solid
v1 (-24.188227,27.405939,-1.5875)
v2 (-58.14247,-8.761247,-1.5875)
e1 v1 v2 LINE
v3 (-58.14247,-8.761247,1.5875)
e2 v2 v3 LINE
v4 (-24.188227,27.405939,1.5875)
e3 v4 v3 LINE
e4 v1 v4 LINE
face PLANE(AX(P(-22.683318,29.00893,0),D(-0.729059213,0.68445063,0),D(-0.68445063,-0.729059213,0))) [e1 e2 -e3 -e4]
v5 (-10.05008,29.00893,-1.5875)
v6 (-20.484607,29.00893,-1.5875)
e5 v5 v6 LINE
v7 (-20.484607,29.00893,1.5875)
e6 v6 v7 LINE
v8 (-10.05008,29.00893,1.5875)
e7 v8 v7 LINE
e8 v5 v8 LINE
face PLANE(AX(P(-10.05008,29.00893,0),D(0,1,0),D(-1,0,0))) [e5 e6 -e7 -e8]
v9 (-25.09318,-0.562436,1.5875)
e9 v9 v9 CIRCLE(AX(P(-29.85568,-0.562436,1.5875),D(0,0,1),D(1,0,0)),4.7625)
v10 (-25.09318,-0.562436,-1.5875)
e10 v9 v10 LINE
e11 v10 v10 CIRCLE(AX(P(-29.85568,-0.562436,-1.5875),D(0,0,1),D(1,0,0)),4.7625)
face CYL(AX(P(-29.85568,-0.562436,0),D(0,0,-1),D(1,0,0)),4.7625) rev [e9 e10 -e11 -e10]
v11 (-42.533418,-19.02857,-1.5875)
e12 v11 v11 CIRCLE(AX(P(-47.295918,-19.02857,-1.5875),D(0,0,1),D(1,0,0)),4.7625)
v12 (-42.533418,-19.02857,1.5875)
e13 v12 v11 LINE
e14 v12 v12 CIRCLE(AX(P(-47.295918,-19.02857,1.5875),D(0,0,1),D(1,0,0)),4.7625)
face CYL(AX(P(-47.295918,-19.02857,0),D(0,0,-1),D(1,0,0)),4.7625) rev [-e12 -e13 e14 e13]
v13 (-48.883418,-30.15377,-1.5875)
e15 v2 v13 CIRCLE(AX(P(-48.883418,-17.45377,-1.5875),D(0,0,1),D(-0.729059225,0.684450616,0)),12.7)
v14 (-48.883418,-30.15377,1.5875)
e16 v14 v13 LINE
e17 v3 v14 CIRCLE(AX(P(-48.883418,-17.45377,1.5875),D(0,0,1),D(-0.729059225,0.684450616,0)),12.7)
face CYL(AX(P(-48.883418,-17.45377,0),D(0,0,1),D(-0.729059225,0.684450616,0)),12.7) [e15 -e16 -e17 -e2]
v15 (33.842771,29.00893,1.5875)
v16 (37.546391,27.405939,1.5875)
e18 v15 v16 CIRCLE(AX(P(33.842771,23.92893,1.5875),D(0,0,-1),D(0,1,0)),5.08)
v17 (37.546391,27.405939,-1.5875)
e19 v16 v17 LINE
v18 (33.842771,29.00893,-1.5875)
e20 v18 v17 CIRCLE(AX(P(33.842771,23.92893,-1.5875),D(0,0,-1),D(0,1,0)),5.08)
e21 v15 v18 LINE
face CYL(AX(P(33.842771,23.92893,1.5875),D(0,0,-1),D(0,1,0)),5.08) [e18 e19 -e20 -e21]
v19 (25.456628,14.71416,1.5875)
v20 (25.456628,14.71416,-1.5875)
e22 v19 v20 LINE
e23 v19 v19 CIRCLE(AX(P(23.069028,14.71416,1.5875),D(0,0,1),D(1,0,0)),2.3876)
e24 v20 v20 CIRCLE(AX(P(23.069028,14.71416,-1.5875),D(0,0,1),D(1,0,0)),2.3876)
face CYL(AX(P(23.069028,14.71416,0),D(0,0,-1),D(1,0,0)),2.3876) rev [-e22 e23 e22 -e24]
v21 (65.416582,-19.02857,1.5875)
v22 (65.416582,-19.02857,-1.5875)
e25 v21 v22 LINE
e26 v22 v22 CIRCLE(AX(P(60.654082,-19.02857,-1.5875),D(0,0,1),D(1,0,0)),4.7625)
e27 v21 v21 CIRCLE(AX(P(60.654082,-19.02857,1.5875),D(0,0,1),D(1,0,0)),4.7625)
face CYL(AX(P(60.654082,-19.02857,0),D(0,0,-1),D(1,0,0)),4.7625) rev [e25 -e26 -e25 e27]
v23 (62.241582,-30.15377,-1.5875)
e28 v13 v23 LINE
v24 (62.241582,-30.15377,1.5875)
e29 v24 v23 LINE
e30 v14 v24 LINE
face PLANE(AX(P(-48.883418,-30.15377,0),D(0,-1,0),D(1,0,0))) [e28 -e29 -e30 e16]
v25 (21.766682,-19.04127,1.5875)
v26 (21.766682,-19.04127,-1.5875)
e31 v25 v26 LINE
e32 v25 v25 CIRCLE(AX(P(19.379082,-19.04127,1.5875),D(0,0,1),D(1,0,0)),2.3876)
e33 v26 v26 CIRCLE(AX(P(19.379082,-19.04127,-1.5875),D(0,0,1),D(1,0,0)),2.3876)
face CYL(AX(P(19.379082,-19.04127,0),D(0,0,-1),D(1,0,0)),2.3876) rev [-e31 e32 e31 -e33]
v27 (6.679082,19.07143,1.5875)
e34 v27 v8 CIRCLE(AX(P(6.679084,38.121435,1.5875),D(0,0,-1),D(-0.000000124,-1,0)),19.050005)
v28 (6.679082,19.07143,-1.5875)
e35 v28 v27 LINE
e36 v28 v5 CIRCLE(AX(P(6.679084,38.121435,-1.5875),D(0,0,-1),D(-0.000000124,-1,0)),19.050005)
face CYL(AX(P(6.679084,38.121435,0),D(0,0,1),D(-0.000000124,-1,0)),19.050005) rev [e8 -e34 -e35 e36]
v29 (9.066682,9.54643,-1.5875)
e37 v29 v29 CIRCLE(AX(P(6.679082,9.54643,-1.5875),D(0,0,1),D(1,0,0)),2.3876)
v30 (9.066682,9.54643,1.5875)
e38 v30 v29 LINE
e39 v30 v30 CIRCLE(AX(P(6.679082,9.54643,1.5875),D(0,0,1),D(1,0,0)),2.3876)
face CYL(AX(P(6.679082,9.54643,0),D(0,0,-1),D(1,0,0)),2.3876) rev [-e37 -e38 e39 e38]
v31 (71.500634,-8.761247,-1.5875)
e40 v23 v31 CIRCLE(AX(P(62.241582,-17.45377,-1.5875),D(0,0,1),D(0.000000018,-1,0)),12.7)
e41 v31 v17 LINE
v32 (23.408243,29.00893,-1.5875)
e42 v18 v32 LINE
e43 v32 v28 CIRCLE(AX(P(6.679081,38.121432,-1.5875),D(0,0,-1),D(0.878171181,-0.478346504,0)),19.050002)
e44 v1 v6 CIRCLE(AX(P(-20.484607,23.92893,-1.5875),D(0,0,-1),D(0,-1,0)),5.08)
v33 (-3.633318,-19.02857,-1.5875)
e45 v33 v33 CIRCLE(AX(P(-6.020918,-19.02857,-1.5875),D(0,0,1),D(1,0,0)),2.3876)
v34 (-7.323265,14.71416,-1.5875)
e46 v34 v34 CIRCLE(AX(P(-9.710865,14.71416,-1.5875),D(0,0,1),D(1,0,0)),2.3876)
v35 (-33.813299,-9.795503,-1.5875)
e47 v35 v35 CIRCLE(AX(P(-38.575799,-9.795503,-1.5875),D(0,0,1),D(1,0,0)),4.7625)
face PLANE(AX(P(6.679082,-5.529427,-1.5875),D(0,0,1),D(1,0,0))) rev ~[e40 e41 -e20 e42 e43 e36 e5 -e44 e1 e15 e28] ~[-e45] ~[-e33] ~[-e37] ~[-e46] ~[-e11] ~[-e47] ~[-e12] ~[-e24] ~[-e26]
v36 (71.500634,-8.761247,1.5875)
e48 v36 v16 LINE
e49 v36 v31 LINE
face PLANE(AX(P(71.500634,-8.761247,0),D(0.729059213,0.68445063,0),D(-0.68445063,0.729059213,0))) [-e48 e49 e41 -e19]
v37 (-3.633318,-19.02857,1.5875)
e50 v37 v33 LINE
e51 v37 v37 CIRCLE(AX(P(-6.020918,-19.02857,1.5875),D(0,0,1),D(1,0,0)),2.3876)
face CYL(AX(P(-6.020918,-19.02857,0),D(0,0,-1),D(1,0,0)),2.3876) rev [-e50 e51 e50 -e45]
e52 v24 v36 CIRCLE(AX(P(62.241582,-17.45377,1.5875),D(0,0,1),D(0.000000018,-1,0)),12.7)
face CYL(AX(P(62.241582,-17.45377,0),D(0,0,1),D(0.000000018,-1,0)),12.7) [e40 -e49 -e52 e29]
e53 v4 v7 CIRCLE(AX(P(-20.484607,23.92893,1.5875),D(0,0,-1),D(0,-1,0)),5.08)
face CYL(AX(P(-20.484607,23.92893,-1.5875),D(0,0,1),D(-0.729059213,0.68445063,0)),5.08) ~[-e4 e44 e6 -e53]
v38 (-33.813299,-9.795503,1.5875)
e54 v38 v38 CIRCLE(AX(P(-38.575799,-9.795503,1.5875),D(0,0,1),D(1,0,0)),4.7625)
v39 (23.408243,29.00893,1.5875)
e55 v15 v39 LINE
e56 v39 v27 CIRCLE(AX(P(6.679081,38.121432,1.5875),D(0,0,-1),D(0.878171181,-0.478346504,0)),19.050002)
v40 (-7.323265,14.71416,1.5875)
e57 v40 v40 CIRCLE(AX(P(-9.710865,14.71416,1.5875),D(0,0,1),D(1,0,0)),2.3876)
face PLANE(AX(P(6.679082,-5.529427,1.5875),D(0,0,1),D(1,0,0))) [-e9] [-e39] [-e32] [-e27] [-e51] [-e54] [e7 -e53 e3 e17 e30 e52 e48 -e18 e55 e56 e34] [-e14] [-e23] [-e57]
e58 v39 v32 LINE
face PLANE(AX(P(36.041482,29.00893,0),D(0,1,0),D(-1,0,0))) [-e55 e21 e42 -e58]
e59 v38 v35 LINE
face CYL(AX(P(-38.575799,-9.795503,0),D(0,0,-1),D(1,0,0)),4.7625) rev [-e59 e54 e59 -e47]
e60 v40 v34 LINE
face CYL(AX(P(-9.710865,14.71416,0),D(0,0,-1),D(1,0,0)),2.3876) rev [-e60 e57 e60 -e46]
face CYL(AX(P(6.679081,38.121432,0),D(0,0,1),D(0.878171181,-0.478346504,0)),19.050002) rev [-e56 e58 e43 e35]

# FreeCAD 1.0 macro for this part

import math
import FreeCAD as App
import Part
import Sketcher

V = App.Vector
Q = App.Units.Quantity


def edges_at(feature, points):
    """Names of the edges that pass closest to the given points."""
    edges = feature.Shape.Edges
    near = lambda p: min(range(len(edges)), key=lambda i: edges[i].distToShape(Part.Vertex(*p))[0])
    return sorted({f"Edge{near(p) + 1}" for p in points})

doc = App.newDocument("Part")
body = doc.addObject("PartDesign::Body", "Body")

# Sketch on XY plane
sketch1 = body.newObject("Sketcher::SketchObject", "Sketch")
sketch1.AttachmentSupport = (doc.getObject("XY_Plane"), [""])
sketch1.MapMode = "FlatFace"
sketch1.addGeometry([
    Part.ArcOfCircle(Part.Circle(V(6.7, 38.1, 0), V(0, 0, 1), 19.1), math.radians(-90), math.radians(-29)),  # 0
    Part.ArcOfCircle(Part.Circle(V(6.7, 38.1, 0), V(0, 0, 1), 19.1), math.radians(-151), math.radians(-90)),  # 1
    Part.LineSegment(V(-10.1, 29, 0), V(-22.7, 29, 0)),  # 2
    Part.LineSegment(V(-22.7, 29, 0), V(-58.1, -8.8, 0)),  # 3
    Part.ArcOfCircle(Part.Circle(V(-48.9, -17.5, 0), V(0, 0, 1), 12.7), math.radians(137), math.radians(270)),  # 4
    Part.LineSegment(V(-48.9, -30.2, 0), V(62.2, -30.2, 0)),  # 5
    Part.ArcOfCircle(Part.Circle(V(62.2, -17.5, 0), V(0, 0, 1), 12.7), math.radians(-90), math.radians(43)),  # 6
    Part.LineSegment(V(71.5, -8.8, 0), V(36, 29, 0)),  # 7
    Part.LineSegment(V(36, 29, 0), V(23.4, 29, 0)),  # 8
    Part.Circle(V(-47.3, -19, 0), V(0, 0, 1), 4.8),  # 9
    Part.Circle(V(-6, -19, 0), V(0, 0, 1), 2.4),  # 10
    Part.Circle(V(-38.6, -9.8, 0), V(0, 0, 1), 4.8),  # 11
    Part.Circle(V(19.4, -19, 0), V(0, 0, 1), 2.4),  # 12
    Part.Circle(V(60.7, -19, 0), V(0, 0, 1), 4.8),  # 13
    Part.Circle(V(-29.9, -0.6, 0), V(0, 0, 1), 4.8),  # 14
    Part.Circle(V(-9.7, 14.7, 0), V(0, 0, 1), 2.4),  # 15
    Part.Circle(V(6.7, 9.5, 0), V(0, 0, 1), 2.4),  # 16
    Part.Circle(V(23.1, 14.7, 0), V(0, 0, 1), 2.4),  # 17
], False)
sketch1.addConstraint([
    Sketcher.Constraint("Tangent", 0, 1, 1, 2),
    Sketcher.Constraint("Coincident", 1, 1, 2, 1),
    Sketcher.Constraint("Coincident", 2, 2, 3, 1),
    Sketcher.Constraint("Tangent", 3, 2, 4, 1),
    Sketcher.Constraint("Tangent", 4, 2, 5, 1),
    Sketcher.Constraint("Tangent", 5, 2, 6, 1),
    Sketcher.Constraint("Tangent", 6, 2, 7, 1),
    Sketcher.Constraint("Coincident", 7, 2, 8, 1),
    Sketcher.Constraint("Coincident", 8, 2, 0, 2),
    Sketcher.Constraint("Horizontal", 2),
    Sketcher.Constraint("Horizontal", 5),
    Sketcher.Constraint("Horizontal", 8),
    Sketcher.Constraint("Equal", 4, 6),
    Sketcher.Constraint("Equal", 9, 11),
    Sketcher.Constraint("Equal", 10, 12),
    Sketcher.Constraint("Equal", 11, 13),
    Sketcher.Constraint("Equal", 13, 14),
    Sketcher.Constraint("Equal", 12, 15),
    Sketcher.Constraint("Equal", 15, 16),
    Sketcher.Constraint("Equal", 16, 17),
    Sketcher.Constraint("Horizontal", 9, 3, 10, 3),
    Sketcher.Constraint("Horizontal", 10, 3, 13, 3),
    Sketcher.Constraint("Horizontal", 15, 3, 17, 3),
    Sketcher.Constraint("Horizontal", 3, 2, 6, 2),
    Sketcher.Constraint("Horizontal", 2, 2, 7, 2),
    Sketcher.Constraint("Vertical", 0, 3, 16, 3),
    Sketcher.Constraint("Vertical", 16, 3, 0, 1),
    Sketcher.Constraint("Equal", 2, 8),
    Sketcher.Constraint("Radius", 4, Q("0.5 in")),
    Sketcher.Constraint("Radius", 0, Q("0.7500001 in")),
    Sketcher.Constraint("Radius", 1, Q("0.7500002 in")),
    Sketcher.Constraint("Diameter", 9, Q("0.375 in")),
    Sketcher.Constraint("Diameter", 10, Q("0.188 in")),
    Sketcher.Constraint("DistanceX", 10, 3, 12, 3, Q("1 in")),
    Sketcher.Constraint("DistanceX", 10, 3, 0, 3, Q("0.4999999 in")),
    Sketcher.Constraint("DistanceX", 5, 1, 5, 2, Q("4.375 in")),
    Sketcher.Constraint("DistanceY", 9, 3, 0, 3, Q("2.2500001 in")),
    Sketcher.Constraint("DistanceY", 4, 3, 0, 3, Q("2.1880001 in")),
    Sketcher.Constraint("DistanceX", 4, 3, 9, 3, Q("0.0625 in")),
    Sketcher.Constraint("DistanceY", 12, 3, 6, 3, Q("0.0625 in")),
    Sketcher.Constraint("DistanceX", 13, 3, 6, 3, Q("0.0625 in")),
    Sketcher.Constraint("DistanceY", 16, 3, 0, 3, Q("1.1250001 in")),
    Sketcher.Constraint("DistanceX", 2, 2, 0, 3, Q("1.1559999 in")),
    Sketcher.Constraint("DistanceX", 8, 2, 8, 1, Q("12.633239 mm")),
    Sketcher.Constraint("DistanceX", 11, 3, -1, 1, Q("38.575799 mm")),
    Sketcher.Constraint("DistanceX", -1, 1, 0, 3, Q("6.679081 mm")),
    Sketcher.Constraint("DistanceY", -1, 1, 0, 3, Q("38.121432 mm")),
    Sketcher.Constraint("DistanceX", 14, 3, -1, 1, Q("29.85568 mm")),
    Sketcher.Constraint("DistanceY", -1, 1, 15, 3, Q("14.71416 mm")),
    Sketcher.Constraint("DistanceX", 15, 3, 1, 3, Q("16.389949 mm")),
    Sketcher.Constraint("DistanceY", 3, 2, 14, 3, Q("8.198811 mm")),
    Sketcher.Constraint("DistanceY", 11, 3, -1, 1, Q("9.795503 mm")),
    Sketcher.Constraint("DistanceX", -1, 1, 17, 3, Q("23.069028 mm")),
])
pad1 = body.newObject("PartDesign::Pad", "Pad")
pad1.Profile = sketch1
pad1.Length = Q("0.125 in")
pad1.Midplane = True
doc.recompute()

fillet = body.newObject("PartDesign::Fillet", "Fillet")
fillet.Base = (pad1, edges_at(pad1, [(-22.683, 29.009, 0), (36.041, 29.009, 0)]))
fillet.Radius = Q("0.2 in")

doc.recompute()
